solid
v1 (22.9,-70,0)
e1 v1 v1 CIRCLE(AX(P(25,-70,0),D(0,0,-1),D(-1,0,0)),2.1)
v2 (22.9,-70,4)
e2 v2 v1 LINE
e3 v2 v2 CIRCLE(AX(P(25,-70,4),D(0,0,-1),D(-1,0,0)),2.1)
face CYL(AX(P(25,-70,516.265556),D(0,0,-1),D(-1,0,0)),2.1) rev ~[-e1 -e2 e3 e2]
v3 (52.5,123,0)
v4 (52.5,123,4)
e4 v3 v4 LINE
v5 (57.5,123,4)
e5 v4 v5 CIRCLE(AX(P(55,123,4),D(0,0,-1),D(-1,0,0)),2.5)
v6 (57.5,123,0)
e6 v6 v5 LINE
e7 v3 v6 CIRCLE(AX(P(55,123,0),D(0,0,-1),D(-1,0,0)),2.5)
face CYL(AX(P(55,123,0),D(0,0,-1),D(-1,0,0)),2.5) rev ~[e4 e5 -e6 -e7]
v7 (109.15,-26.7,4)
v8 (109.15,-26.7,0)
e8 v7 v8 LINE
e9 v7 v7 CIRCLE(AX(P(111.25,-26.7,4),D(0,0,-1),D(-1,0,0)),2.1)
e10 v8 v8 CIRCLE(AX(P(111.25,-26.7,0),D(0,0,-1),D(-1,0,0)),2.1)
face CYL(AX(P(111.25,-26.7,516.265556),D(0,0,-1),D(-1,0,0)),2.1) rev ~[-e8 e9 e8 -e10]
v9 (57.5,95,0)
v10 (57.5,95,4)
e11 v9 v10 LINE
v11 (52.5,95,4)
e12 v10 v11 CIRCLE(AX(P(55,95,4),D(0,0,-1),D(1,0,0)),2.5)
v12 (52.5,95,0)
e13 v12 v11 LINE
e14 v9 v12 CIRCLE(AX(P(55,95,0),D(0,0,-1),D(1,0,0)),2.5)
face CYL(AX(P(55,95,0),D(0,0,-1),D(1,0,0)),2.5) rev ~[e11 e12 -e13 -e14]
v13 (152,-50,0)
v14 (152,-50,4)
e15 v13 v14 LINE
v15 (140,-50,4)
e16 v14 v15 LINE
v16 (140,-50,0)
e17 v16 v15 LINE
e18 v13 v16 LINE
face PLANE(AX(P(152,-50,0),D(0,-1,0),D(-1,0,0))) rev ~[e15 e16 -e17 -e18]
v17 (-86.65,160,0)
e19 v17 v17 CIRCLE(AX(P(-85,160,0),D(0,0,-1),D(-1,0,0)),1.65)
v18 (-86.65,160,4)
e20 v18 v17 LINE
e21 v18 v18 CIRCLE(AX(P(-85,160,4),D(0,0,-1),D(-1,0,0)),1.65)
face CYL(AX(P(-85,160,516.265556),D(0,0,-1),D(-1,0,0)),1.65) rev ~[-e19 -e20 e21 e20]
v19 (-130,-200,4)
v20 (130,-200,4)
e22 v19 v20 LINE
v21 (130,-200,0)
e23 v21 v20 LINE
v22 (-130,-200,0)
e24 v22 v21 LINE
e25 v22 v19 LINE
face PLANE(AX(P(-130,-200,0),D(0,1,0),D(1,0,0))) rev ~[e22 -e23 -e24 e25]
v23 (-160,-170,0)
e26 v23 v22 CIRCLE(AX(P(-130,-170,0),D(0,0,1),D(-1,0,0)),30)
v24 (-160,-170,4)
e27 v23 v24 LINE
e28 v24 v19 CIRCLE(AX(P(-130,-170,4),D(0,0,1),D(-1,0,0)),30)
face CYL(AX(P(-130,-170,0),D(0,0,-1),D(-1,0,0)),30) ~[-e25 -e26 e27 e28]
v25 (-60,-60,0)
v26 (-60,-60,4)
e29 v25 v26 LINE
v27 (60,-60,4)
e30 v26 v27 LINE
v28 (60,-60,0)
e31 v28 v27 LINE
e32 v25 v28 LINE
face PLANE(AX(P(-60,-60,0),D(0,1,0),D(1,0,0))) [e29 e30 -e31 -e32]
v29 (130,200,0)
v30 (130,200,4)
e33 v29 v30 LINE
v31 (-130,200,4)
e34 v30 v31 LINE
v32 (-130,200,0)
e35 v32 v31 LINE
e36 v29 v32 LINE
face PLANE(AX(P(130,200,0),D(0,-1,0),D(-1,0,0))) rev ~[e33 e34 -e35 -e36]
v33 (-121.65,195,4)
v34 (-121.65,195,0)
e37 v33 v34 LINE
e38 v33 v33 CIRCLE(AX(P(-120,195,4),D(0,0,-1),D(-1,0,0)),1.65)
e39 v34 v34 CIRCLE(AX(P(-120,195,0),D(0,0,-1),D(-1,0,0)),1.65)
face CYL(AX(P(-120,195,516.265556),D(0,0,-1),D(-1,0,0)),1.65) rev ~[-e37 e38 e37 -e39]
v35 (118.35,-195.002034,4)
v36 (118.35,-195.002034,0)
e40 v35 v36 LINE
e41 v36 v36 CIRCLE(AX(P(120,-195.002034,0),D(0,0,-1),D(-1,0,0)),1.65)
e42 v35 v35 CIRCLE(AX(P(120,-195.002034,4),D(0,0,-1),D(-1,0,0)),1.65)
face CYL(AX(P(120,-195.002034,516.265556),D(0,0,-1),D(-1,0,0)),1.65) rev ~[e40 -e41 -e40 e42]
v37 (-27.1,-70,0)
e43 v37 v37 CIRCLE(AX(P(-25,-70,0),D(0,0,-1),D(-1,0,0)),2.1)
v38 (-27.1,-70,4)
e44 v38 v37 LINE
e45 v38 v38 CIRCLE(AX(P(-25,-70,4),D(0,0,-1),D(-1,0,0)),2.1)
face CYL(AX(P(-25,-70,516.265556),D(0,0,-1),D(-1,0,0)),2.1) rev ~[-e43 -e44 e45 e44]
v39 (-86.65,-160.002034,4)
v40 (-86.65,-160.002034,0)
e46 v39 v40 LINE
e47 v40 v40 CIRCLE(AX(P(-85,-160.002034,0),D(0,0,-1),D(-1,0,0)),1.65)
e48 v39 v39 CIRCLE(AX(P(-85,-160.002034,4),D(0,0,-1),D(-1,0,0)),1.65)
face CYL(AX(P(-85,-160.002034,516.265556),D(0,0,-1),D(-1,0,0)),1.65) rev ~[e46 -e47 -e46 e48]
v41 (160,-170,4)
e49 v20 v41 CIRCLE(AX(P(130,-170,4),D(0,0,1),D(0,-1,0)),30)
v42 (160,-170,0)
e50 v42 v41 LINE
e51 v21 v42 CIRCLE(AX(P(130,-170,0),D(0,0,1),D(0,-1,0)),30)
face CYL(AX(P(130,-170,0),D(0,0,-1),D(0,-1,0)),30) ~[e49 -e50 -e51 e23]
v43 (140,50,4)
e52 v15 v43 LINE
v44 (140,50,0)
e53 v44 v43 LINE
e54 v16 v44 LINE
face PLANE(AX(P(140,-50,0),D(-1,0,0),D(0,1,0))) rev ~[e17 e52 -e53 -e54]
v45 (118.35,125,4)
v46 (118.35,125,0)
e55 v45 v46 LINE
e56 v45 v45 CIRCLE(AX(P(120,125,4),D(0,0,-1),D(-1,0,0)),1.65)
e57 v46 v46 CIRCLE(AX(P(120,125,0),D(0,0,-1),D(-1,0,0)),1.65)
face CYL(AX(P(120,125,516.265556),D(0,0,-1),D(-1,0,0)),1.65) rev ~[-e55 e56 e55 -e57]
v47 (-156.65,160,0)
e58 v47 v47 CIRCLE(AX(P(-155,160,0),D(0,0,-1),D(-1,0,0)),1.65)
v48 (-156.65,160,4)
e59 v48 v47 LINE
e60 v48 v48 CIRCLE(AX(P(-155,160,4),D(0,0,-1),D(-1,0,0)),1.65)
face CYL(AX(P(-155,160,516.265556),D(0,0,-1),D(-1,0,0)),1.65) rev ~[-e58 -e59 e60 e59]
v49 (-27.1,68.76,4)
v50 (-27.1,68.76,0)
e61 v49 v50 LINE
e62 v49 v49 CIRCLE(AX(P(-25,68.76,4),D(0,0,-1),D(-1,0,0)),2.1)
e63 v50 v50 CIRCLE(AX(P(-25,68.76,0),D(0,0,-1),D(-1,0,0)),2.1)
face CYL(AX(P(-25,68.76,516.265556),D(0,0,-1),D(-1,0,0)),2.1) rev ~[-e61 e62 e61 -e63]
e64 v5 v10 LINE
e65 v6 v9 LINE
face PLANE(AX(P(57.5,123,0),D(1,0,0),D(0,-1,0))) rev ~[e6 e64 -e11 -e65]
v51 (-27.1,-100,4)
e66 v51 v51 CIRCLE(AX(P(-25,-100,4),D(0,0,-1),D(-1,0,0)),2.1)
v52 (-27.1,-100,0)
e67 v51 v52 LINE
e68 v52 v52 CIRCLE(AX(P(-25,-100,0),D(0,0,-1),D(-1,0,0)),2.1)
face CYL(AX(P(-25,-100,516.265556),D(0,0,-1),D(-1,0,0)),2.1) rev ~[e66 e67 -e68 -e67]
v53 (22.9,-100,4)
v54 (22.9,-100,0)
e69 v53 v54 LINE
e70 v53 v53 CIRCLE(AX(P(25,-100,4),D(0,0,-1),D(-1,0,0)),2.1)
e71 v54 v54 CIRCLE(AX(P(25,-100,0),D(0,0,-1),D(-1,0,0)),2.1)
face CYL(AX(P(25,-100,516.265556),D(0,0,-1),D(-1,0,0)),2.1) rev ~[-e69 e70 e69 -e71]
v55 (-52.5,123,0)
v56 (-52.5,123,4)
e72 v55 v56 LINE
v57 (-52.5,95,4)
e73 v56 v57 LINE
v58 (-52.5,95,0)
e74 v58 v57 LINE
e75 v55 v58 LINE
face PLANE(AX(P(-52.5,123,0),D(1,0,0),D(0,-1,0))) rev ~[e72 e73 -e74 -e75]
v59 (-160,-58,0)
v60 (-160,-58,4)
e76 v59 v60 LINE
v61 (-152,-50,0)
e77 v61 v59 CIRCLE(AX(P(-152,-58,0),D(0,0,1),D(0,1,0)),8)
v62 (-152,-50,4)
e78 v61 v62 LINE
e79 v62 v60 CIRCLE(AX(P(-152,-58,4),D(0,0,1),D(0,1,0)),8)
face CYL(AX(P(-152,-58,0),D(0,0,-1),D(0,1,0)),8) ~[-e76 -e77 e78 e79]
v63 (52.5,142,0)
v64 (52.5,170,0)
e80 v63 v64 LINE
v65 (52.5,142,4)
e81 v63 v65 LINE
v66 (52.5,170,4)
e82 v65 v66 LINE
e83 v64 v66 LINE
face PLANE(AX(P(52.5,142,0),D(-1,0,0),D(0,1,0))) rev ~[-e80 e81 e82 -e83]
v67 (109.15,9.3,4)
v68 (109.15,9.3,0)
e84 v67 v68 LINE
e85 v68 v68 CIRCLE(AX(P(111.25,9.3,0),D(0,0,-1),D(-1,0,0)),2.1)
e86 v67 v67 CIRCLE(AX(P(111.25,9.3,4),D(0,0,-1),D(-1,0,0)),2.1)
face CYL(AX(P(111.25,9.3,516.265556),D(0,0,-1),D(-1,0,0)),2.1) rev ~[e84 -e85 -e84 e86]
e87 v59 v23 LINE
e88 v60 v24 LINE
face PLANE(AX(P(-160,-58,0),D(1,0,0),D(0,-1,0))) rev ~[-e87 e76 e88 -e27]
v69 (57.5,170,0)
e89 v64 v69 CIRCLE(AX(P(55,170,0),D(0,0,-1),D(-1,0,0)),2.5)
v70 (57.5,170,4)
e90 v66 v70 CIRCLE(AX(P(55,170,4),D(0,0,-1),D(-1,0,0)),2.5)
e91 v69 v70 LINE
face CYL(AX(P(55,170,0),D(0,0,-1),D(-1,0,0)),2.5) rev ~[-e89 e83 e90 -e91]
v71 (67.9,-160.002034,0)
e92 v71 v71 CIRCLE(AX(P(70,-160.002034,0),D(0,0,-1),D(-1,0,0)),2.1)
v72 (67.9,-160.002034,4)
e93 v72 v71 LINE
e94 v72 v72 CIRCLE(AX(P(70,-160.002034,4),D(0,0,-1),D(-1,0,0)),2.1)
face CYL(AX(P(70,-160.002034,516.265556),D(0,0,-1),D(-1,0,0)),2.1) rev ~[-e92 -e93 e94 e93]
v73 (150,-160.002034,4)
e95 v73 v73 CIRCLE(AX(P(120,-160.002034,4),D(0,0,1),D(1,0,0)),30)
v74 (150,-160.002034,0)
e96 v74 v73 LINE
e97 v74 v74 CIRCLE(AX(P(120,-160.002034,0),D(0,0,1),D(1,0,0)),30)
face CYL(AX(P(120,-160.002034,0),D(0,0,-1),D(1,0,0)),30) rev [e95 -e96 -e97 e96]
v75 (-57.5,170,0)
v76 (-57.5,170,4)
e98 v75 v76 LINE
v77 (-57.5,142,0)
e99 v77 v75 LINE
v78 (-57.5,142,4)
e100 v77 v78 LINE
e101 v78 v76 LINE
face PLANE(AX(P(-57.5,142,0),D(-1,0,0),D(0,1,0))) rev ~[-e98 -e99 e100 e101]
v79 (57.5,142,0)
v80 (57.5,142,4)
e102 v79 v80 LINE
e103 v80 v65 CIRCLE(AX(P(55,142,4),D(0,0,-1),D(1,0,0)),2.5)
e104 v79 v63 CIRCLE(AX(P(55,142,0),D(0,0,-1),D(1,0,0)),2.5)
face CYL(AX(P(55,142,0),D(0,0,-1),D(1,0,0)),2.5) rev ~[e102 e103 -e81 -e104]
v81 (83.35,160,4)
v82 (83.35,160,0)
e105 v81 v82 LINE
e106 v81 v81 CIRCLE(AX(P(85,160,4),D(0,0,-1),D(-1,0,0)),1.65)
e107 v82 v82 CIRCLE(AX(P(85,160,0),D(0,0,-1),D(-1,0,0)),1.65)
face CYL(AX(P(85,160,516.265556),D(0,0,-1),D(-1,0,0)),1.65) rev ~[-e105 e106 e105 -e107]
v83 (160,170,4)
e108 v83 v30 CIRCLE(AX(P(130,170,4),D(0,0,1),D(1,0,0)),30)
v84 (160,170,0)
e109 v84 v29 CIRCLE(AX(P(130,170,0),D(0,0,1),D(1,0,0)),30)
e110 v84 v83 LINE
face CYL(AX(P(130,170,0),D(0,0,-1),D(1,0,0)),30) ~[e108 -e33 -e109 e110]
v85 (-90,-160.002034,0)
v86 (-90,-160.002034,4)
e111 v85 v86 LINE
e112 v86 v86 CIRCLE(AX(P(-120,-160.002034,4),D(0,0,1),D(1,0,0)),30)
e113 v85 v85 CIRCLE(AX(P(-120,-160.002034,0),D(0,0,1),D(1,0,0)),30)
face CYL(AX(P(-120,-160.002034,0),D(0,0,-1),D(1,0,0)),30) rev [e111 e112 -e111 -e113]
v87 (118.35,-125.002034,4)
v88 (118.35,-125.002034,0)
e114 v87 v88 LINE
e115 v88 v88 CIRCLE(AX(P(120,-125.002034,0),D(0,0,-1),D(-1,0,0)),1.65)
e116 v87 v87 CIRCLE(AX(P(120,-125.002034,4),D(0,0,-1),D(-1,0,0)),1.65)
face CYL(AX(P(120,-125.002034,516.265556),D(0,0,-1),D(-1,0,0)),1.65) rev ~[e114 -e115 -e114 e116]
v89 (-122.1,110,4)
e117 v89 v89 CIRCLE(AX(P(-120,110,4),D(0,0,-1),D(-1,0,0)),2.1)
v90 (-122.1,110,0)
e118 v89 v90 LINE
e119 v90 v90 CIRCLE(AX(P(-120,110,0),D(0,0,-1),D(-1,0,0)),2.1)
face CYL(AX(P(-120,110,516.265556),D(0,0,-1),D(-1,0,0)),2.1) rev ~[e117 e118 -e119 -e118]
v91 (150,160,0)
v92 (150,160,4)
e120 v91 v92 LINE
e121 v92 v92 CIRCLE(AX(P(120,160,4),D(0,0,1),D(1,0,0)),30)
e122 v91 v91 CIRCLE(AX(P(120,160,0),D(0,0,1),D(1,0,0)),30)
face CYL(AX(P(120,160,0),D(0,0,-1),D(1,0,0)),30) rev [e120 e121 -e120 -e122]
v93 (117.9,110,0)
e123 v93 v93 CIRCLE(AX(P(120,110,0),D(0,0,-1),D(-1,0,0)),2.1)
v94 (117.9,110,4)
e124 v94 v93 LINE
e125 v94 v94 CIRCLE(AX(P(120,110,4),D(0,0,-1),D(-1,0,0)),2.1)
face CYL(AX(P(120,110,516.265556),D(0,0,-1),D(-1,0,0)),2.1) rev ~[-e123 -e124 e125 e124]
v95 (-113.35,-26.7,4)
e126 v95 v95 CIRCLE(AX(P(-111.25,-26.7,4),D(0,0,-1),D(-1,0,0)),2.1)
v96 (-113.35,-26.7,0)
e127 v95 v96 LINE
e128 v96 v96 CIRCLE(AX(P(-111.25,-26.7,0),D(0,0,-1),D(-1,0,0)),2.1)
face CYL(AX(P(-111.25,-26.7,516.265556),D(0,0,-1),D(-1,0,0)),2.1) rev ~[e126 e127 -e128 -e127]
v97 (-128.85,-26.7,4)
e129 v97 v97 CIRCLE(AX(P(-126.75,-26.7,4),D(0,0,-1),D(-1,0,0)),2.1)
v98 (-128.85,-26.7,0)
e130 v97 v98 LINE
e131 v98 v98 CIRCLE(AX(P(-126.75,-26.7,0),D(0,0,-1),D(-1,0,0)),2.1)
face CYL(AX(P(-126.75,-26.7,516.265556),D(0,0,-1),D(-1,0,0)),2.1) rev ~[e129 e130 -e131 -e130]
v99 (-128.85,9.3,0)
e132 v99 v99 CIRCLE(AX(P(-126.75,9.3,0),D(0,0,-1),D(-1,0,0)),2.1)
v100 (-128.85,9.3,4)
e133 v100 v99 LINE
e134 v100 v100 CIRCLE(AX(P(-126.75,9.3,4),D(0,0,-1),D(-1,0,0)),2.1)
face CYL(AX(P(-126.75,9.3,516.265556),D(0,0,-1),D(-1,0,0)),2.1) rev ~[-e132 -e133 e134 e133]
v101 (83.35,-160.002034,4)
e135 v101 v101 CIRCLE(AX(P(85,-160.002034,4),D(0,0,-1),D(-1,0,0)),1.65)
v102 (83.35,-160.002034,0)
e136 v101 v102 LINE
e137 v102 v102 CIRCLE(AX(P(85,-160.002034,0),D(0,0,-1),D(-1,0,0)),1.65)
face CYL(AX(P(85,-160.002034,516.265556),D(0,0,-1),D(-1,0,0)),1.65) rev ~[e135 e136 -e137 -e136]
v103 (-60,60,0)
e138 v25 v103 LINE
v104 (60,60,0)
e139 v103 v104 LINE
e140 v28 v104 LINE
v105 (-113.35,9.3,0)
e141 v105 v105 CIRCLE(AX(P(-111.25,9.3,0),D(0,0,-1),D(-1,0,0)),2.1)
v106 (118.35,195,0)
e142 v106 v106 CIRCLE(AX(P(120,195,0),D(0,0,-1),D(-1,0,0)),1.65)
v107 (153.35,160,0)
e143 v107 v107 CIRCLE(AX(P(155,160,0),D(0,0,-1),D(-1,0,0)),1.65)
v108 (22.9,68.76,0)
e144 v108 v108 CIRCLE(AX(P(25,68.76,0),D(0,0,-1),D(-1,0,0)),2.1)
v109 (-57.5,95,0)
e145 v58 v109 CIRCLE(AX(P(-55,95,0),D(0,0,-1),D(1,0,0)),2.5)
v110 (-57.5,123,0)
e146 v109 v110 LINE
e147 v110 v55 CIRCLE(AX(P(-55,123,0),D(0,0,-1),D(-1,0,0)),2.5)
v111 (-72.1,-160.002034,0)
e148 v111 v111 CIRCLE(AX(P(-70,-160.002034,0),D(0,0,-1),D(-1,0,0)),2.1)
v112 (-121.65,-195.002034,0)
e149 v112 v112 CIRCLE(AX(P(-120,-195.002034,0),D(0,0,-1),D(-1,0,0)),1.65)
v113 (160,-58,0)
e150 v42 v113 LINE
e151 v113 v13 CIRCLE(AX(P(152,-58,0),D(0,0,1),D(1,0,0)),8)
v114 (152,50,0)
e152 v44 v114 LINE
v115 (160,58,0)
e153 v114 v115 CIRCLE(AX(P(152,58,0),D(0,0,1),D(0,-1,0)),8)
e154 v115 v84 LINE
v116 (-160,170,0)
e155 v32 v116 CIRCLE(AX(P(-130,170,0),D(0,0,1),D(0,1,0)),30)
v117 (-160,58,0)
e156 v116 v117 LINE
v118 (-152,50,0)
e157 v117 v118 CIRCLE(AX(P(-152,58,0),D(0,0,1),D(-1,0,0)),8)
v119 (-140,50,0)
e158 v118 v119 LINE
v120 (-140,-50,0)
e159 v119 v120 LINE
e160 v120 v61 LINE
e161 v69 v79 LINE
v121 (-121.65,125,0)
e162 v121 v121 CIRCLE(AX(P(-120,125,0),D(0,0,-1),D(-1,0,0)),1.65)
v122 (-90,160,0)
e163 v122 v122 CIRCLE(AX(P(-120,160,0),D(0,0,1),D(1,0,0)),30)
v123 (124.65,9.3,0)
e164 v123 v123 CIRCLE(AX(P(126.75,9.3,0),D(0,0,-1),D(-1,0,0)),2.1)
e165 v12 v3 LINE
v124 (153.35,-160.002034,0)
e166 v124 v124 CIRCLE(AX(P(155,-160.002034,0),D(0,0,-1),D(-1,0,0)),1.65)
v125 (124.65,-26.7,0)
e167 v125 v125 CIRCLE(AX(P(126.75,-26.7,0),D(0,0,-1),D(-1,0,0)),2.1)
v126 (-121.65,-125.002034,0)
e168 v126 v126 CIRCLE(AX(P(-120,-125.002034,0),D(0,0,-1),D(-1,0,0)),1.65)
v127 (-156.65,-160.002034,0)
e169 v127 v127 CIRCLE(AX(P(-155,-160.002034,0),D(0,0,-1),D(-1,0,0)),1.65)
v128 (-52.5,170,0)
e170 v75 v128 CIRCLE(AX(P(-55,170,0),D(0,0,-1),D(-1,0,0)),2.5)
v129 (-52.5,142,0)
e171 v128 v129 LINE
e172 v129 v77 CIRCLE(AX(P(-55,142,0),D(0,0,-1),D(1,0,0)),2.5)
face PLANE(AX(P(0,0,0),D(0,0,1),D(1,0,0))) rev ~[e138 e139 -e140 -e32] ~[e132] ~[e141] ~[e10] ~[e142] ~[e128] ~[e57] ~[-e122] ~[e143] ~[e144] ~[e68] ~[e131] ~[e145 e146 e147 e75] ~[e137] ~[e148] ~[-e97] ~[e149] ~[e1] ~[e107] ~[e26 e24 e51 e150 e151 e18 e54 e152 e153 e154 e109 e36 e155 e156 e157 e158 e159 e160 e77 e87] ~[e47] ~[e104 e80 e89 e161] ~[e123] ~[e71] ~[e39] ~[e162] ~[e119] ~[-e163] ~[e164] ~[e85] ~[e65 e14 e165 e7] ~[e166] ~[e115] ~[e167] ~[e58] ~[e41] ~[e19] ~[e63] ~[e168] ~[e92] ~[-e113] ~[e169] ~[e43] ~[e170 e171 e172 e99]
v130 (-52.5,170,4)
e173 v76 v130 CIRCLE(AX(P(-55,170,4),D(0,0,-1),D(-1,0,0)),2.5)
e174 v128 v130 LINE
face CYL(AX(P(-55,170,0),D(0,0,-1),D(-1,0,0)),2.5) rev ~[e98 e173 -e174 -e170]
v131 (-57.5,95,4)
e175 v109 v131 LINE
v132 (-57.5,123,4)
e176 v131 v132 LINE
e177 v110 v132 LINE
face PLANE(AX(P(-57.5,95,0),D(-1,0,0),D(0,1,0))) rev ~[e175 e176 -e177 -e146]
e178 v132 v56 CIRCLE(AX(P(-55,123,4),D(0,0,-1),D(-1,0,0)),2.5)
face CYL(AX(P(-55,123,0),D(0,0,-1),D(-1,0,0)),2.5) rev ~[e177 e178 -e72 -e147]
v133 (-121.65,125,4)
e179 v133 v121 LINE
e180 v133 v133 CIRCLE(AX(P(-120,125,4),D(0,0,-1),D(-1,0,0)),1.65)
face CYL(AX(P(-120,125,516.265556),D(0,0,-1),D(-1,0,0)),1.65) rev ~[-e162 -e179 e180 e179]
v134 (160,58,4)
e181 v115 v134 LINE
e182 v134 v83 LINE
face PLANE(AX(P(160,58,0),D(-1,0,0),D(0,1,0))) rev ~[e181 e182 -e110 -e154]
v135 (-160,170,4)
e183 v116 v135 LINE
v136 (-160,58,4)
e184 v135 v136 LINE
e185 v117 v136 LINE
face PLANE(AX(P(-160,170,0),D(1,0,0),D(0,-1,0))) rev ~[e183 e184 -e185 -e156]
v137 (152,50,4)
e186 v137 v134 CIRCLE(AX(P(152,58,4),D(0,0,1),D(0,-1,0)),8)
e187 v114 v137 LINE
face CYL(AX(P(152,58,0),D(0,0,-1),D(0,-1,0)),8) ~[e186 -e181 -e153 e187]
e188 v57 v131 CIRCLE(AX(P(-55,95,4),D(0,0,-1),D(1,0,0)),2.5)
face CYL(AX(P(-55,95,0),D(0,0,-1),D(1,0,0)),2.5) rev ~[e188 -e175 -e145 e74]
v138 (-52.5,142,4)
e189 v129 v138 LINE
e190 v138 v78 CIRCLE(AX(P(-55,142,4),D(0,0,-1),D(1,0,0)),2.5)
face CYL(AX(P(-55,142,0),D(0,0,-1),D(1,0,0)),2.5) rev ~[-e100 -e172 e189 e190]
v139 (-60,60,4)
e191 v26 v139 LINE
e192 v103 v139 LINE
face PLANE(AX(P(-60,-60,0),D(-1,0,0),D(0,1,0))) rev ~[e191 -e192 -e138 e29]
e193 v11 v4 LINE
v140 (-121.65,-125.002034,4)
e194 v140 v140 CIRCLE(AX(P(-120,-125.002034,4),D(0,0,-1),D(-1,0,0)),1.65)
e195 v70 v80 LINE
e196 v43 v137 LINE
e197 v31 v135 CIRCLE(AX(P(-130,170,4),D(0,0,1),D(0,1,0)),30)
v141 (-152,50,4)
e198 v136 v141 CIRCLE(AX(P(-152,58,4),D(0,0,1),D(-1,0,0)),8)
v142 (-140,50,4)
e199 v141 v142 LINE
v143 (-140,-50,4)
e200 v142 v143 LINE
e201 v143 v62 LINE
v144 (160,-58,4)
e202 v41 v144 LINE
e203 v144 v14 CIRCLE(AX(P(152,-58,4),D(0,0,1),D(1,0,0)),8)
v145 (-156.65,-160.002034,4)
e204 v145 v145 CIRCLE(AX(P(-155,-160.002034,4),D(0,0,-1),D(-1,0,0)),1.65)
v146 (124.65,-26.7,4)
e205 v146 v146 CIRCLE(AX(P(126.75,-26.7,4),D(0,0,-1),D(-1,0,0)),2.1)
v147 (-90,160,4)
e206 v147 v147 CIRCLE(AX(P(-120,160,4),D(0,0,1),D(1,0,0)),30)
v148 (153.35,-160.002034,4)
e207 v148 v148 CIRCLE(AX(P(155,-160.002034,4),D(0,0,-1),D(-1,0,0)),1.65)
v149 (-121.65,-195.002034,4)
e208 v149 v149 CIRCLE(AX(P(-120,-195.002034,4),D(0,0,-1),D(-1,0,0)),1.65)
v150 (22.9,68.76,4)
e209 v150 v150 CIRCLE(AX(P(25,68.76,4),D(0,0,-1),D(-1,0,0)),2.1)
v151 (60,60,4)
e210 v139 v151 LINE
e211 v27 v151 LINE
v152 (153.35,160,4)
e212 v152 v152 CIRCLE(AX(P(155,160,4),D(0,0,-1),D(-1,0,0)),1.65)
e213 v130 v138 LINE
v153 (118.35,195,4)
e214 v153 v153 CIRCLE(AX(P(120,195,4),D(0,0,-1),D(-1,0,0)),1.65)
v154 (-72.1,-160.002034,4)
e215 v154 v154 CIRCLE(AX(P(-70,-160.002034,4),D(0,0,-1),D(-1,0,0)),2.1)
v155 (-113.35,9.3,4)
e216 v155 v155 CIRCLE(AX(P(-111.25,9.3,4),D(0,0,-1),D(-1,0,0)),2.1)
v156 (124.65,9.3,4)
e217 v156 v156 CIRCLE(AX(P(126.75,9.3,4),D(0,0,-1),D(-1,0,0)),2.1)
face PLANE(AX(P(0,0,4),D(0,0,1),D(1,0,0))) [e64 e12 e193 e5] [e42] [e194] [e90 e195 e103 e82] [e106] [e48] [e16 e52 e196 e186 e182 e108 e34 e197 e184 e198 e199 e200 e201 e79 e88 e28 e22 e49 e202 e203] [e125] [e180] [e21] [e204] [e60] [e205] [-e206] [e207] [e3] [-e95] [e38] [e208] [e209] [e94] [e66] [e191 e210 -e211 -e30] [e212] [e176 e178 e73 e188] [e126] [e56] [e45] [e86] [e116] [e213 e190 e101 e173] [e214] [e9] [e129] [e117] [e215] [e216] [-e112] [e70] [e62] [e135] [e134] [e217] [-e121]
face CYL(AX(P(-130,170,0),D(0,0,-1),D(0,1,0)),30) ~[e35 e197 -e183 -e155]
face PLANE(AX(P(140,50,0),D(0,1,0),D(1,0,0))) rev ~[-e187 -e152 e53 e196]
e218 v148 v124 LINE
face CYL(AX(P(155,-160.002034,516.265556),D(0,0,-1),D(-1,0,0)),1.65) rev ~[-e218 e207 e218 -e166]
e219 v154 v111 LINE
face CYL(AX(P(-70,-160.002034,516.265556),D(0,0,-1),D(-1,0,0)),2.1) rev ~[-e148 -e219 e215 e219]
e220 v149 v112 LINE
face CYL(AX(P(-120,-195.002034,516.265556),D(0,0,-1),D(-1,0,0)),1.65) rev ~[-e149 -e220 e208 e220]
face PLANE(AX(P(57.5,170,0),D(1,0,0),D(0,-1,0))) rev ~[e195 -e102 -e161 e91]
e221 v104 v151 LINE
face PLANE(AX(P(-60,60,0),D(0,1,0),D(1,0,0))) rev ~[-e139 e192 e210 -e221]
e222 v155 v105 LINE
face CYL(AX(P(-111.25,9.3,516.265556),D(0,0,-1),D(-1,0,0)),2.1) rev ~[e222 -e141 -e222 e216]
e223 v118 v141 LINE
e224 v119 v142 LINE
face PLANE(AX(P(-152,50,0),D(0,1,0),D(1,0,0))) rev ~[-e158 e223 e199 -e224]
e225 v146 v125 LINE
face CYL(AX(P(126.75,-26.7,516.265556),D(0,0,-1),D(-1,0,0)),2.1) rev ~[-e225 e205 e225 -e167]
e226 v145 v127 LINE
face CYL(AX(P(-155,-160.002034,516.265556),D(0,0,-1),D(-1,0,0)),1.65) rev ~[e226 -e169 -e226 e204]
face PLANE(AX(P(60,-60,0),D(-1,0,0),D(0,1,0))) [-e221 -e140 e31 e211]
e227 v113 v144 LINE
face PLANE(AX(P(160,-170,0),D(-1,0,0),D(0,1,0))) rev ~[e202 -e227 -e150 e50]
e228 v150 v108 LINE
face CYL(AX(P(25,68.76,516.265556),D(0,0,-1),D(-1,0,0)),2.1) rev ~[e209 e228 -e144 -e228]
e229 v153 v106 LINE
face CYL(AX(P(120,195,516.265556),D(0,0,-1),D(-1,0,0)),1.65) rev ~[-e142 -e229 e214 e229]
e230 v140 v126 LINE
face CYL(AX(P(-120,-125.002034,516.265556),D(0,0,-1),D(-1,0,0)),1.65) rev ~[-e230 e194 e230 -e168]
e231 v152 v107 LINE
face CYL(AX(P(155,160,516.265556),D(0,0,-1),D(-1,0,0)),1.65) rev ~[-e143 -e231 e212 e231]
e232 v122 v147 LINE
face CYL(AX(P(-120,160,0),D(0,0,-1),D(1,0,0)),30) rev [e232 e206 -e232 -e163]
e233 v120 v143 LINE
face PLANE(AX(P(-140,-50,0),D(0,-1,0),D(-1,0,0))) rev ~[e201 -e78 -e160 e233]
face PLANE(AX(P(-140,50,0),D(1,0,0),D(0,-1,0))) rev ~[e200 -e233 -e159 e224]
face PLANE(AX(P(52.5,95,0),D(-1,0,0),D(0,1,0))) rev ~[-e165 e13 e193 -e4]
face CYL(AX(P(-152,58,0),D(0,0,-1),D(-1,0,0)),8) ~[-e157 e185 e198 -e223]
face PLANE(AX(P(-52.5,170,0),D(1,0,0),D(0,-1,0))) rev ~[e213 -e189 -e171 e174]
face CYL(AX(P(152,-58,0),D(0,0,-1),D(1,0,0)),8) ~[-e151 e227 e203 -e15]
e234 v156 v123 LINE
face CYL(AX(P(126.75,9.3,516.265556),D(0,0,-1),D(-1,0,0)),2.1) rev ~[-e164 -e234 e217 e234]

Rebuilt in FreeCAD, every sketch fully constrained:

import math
import FreeCAD as App
import Part
import Sketcher


def add_polygon(sketch, points):
    """Adds a closed chain of lines whose ends are joined by coincident constraints."""
    first, n = sketch.GeometryCount, len(points)
    for a, b in zip(points, points[1:] + points[:1]):
        sketch.addGeometry(Part.LineSegment(App.Vector(*a, 0), App.Vector(*b, 0)), False)
    for i in range(n):
        sketch.addConstraint(Sketcher.Constraint("Coincident", first + i, 2, first + (i + 1) % n, 1))

doc = App.newDocument("Part")
body = doc.addObject("PartDesign::Body", "Body")

sketch1 = doc.addObject("Sketcher::SketchObject", "Sketch")
body.addObject(sketch1)
sketch1.AttachmentSupport = (doc.XY_Plane, [""])
sketch1.MapMode = "FlatFace"
sketch1.addGeometry(Part.LineSegment(App.Vector(-140, 50, 0), App.Vector(-140, -50, 0)), False)
sketch1.addGeometry(Part.LineSegment(App.Vector(-140, -50, 0), App.Vector(-152, -50, 0)), False)
sketch1.addGeometry(Part.ArcOfCircle(Part.Circle(App.Vector(-152, -58, 0), App.Vector(0, 0, 1), 8), math.radians(90), math.radians(180)), False)
sketch1.addGeometry(Part.LineSegment(App.Vector(-160, -58, 0), App.Vector(-160, -170, 0)), False)
sketch1.addGeometry(Part.ArcOfCircle(Part.Circle(App.Vector(-130, -170, 0), App.Vector(0, 0, 1), 30), math.radians(180), math.radians(270)), False)
sketch1.addGeometry(Part.LineSegment(App.Vector(-130, -200, 0), App.Vector(130, -200, 0)), False)
sketch1.addGeometry(Part.ArcOfCircle(Part.Circle(App.Vector(130, -170, 0), App.Vector(0, 0, 1), 30), math.radians(-90), math.radians(0)), False)
sketch1.addGeometry(Part.LineSegment(App.Vector(160, -170, 0), App.Vector(160, -58, 0)), False)
sketch1.addGeometry(Part.ArcOfCircle(Part.Circle(App.Vector(152, -58, 0), App.Vector(0, 0, 1), 8), math.radians(0), math.radians(90)), False)
sketch1.addGeometry(Part.LineSegment(App.Vector(152, -50, 0), App.Vector(140, -50, 0)), False)
sketch1.addGeometry(Part.LineSegment(App.Vector(140, -50, 0), App.Vector(140, 50, 0)), False)
sketch1.addGeometry(Part.LineSegment(App.Vector(140, 50, 0), App.Vector(152, 50, 0)), False)
sketch1.addGeometry(Part.ArcOfCircle(Part.Circle(App.Vector(152, 58, 0), App.Vector(0, 0, 1), 8), math.radians(-90), math.radians(0)), False)
sketch1.addGeometry(Part.LineSegment(App.Vector(160, 58, 0), App.Vector(160, 170, 0)), False)
sketch1.addGeometry(Part.ArcOfCircle(Part.Circle(App.Vector(130, 170, 0), App.Vector(0, 0, 1), 30), math.radians(0), math.radians(90)), False)
sketch1.addGeometry(Part.LineSegment(App.Vector(130, 200, 0), App.Vector(-130, 200, 0)), False)
sketch1.addGeometry(Part.ArcOfCircle(Part.Circle(App.Vector(-130, 170, 0), App.Vector(0, 0, 1), 30), math.radians(90), math.radians(180)), False)
sketch1.addGeometry(Part.LineSegment(App.Vector(-160, 170, 0), App.Vector(-160, 58, 0)), False)
sketch1.addGeometry(Part.ArcOfCircle(Part.Circle(App.Vector(-152, 58, 0), App.Vector(0, 0, 1), 8), math.radians(-180), math.radians(-90)), False)
sketch1.addGeometry(Part.LineSegment(App.Vector(-152, 50, 0), App.Vector(-140, 50, 0)), False)
sketch1.addGeometry(Part.Circle(App.Vector(-120, -195.002034, 0), App.Vector(0, 0, 1), 1.5), False)
sketch1.addGeometry(Part.Circle(App.Vector(-155, -160.002034, 0), App.Vector(0, 0, 1), 1.5), False)
sketch1.addGeometry(Part.Circle(App.Vector(-120, -160.002034, 0), App.Vector(0, 0, 1), 30), False)
sketch1.addGeometry(Part.Circle(App.Vector(-85, -160.002034, 0), App.Vector(0, 0, 1), 1.5), False)
sketch1.addGeometry(Part.Circle(App.Vector(-120, -125.002034, 0), App.Vector(0, 0, 1), 1.5), False)
sketch1.addGeometry(Part.Circle(App.Vector(-70, -160.002034, 0), App.Vector(0, 0, 1), 2), False)
sketch1.addGeometry(Part.Circle(App.Vector(-25, -100, 0), App.Vector(0, 0, 1), 2), False)
sketch1.addGeometry(Part.Circle(App.Vector(-126.75, -26.7, 0), App.Vector(0, 0, 1), 2), False)
sketch1.addGeometry(Part.Circle(App.Vector(-111.25, -26.7, 0), App.Vector(0, 0, 1), 2), False)
sketch1.addGeometry(Part.Circle(App.Vector(-25, -70, 0), App.Vector(0, 0, 1), 2), False)
sketch1.addGeometry(Part.Circle(App.Vector(70, -160.002034, 0), App.Vector(0, 0, 1), 2), False)
sketch1.addGeometry(Part.Circle(App.Vector(25, -100, 0), App.Vector(0, 0, 1), 2), False)
sketch1.addGeometry(Part.Circle(App.Vector(85, -160.002034, 0), App.Vector(0, 0, 1), 1.5), False)
sketch1.addGeometry(Part.Circle(App.Vector(120, -195.002034, 0), App.Vector(0, 0, 1), 1.5), False)
sketch1.addGeometry(Part.Circle(App.Vector(120, -160.002034, 0), App.Vector(0, 0, 1), 30), False)
sketch1.addGeometry(Part.Circle(App.Vector(155, -160.002034, 0), App.Vector(0, 0, 1), 1.5), False)
sketch1.addGeometry(Part.Circle(App.Vector(120, -125.002034, 0), App.Vector(0, 0, 1), 1.5), False)
sketch1.addGeometry(Part.Circle(App.Vector(25, -70, 0), App.Vector(0, 0, 1), 2), False)
sketch1.addGeometry(Part.Circle(App.Vector(111.25, -26.7, 0), App.Vector(0, 0, 1), 2), False)
sketch1.addGeometry(Part.Circle(App.Vector(126.75, -26.7, 0), App.Vector(0, 0, 1), 2), False)
sketch1.addGeometry(Part.Circle(App.Vector(-126.75, 9.3, 0), App.Vector(0, 0, 1), 2), False)
sketch1.addGeometry(Part.Circle(App.Vector(-111.25, 9.3, 0), App.Vector(0, 0, 1), 2), False)
sketch1.addGeometry(Part.Circle(App.Vector(-25, 68.76, 0), App.Vector(0, 0, 1), 2), False)
sketch1.addGeometry(Part.Circle(App.Vector(-120, 110, 0), App.Vector(0, 0, 1), 2), False)
sketch1.addGeometry(Part.Circle(App.Vector(-120, 125, 0), App.Vector(0, 0, 1), 1.5), False)
sketch1.addGeometry(Part.Circle(App.Vector(-155, 160, 0), App.Vector(0, 0, 1), 1.5), False)
sketch1.addGeometry(Part.Circle(App.Vector(-120, 160, 0), App.Vector(0, 0, 1), 30), False)
sketch1.addGeometry(Part.Circle(App.Vector(-120, 195, 0), App.Vector(0, 0, 1), 1.5), False)
sketch1.addGeometry(Part.Circle(App.Vector(-85, 160, 0), App.Vector(0, 0, 1), 1.5), False)
sketch1.addGeometry(Part.ArcOfCircle(Part.Circle(App.Vector(-55, 123, 0), App.Vector(0, 0, 1), 2.5), math.radians(0), math.radians(180)), False)
sketch1.addGeometry(Part.LineSegment(App.Vector(-52.5, 123, 0), App.Vector(-52.5, 95, 0)), False)
sketch1.addGeometry(Part.ArcOfCircle(Part.Circle(App.Vector(-55, 95, 0), App.Vector(0, 0, 1), 2.5), math.radians(180), math.radians(360)), False)
sketch1.addGeometry(Part.LineSegment(App.Vector(-57.5, 95, 0), App.Vector(-57.5, 123, 0)), False)
sketch1.addGeometry(Part.ArcOfCircle(Part.Circle(App.Vector(-55, 170, 0), App.Vector(0, 0, 1), 2.5), math.radians(0), math.radians(180)), False)
sketch1.addGeometry(Part.LineSegment(App.Vector(-52.5, 170, 0), App.Vector(-52.5, 142, 0)), False)
sketch1.addGeometry(Part.ArcOfCircle(Part.Circle(App.Vector(-55, 142, 0), App.Vector(0, 0, 1), 2.5), math.radians(180), math.radians(360)), False)
sketch1.addGeometry(Part.LineSegment(App.Vector(-57.5, 142, 0), App.Vector(-57.5, 170, 0)), False)
add_polygon(sketch1, [(60, -60), (-60, -60), (-60, 60), (60, 60)])
sketch1.addGeometry(Part.Circle(App.Vector(25, 68.76, 0), App.Vector(0, 0, 1), 2), False)
sketch1.addGeometry(Part.Circle(App.Vector(111.25, 9.3, 0), App.Vector(0, 0, 1), 2), False)
sketch1.addGeometry(Part.Circle(App.Vector(126.75, 9.3, 0), App.Vector(0, 0, 1), 2), False)
sketch1.addGeometry(Part.ArcOfCircle(Part.Circle(App.Vector(55, 123, 0), App.Vector(0, 0, 1), 2.5), math.radians(0), math.radians(180)), False)
sketch1.addGeometry(Part.LineSegment(App.Vector(57.5, 123, 0), App.Vector(57.5, 95, 0)), False)
sketch1.addGeometry(Part.ArcOfCircle(Part.Circle(App.Vector(55, 95, 0), App.Vector(0, 0, 1), 2.5), math.radians(180), math.radians(360)), False)
sketch1.addGeometry(Part.LineSegment(App.Vector(52.5, 95, 0), App.Vector(52.5, 123, 0)), False)
sketch1.addGeometry(Part.ArcOfCircle(Part.Circle(App.Vector(55, 170, 0), App.Vector(0, 0, 1), 2.5), math.radians(0), math.radians(180)), False)
sketch1.addGeometry(Part.LineSegment(App.Vector(57.5, 170, 0), App.Vector(57.5, 142, 0)), False)
sketch1.addGeometry(Part.ArcOfCircle(Part.Circle(App.Vector(55, 142, 0), App.Vector(0, 0, 1), 2.5), math.radians(180), math.radians(360)), False)
sketch1.addGeometry(Part.LineSegment(App.Vector(52.5, 142, 0), App.Vector(52.5, 170, 0)), False)
sketch1.addGeometry(Part.Circle(App.Vector(120, 110, 0), App.Vector(0, 0, 1), 2), False)
sketch1.addGeometry(Part.Circle(App.Vector(120, 125, 0), App.Vector(0, 0, 1), 1.5), False)
sketch1.addGeometry(Part.Circle(App.Vector(85, 160, 0), App.Vector(0, 0, 1), 1.5), False)
sketch1.addGeometry(Part.Circle(App.Vector(120, 160, 0), App.Vector(0, 0, 1), 30), False)
sketch1.addGeometry(Part.Circle(App.Vector(155, 160, 0), App.Vector(0, 0, 1), 1.5), False)
sketch1.addGeometry(Part.Circle(App.Vector(120, 195, 0), App.Vector(0, 0, 1), 1.5), False)
sketch1.addConstraint([
    Sketcher.Constraint("Coincident", 0, 2, 1, 1),
    Sketcher.Constraint("Tangent", 1, 2, 2, 1),
    Sketcher.Constraint("Tangent", 2, 2, 3, 1),
    Sketcher.Constraint("Tangent", 3, 2, 4, 1),
    Sketcher.Constraint("Tangent", 4, 2, 5, 1),
    Sketcher.Constraint("Tangent", 5, 2, 6, 1),
    Sketcher.Constraint("Tangent", 6, 2, 7, 1),
    Sketcher.Constraint("Tangent", 7, 2, 8, 1),
    Sketcher.Constraint("Tangent", 8, 2, 9, 1),
    Sketcher.Constraint("Coincident", 9, 2, 10, 1),
    Sketcher.Constraint("Coincident", 10, 2, 11, 1),
    Sketcher.Constraint("Tangent", 11, 2, 12, 1),
    Sketcher.Constraint("Tangent", 12, 2, 13, 1),
    Sketcher.Constraint("Tangent", 13, 2, 14, 1),
    Sketcher.Constraint("Tangent", 14, 2, 15, 1),
    Sketcher.Constraint("Tangent", 15, 2, 16, 1),
    Sketcher.Constraint("Tangent", 16, 2, 17, 1),
    Sketcher.Constraint("Tangent", 17, 2, 18, 1),
    Sketcher.Constraint("Tangent", 18, 2, 19, 1),
    Sketcher.Constraint("Coincident", 19, 2, 0, 1),
    Sketcher.Constraint("Tangent", 49, 1, 50, 1),
    Sketcher.Constraint("Tangent", 50, 2, 51, 2),
    Sketcher.Constraint("Tangent", 51, 1, 52, 1),
    Sketcher.Constraint("Tangent", 52, 2, 49, 2),
    Sketcher.Constraint("Tangent", 53, 1, 54, 1),
    Sketcher.Constraint("Tangent", 54, 2, 55, 2),
    Sketcher.Constraint("Tangent", 55, 1, 56, 1),
    Sketcher.Constraint("Tangent", 56, 2, 53, 2),
    Sketcher.Constraint("Tangent", 64, 1, 65, 1),
    Sketcher.Constraint("Tangent", 65, 2, 66, 2),
    Sketcher.Constraint("Tangent", 66, 1, 67, 1),
    Sketcher.Constraint("Tangent", 67, 2, 64, 2),
    Sketcher.Constraint("Tangent", 68, 1, 69, 1),
    Sketcher.Constraint("Tangent", 69, 2, 70, 2),
    Sketcher.Constraint("Tangent", 70, 1, 71, 1),
    Sketcher.Constraint("Tangent", 71, 2, 68, 2),
    Sketcher.Constraint("Vertical", 0),
    Sketcher.Constraint("Horizontal", 1),
    Sketcher.Constraint("Vertical", 3),
    Sketcher.Constraint("Horizontal", 5),
    Sketcher.Constraint("Vertical", 7),
    Sketcher.Constraint("Horizontal", 9),
    Sketcher.Constraint("Vertical", 10),
    Sketcher.Constraint("Horizontal", 11),
    Sketcher.Constraint("Vertical", 13),
    Sketcher.Constraint("Horizontal", 15),
    Sketcher.Constraint("Vertical", 17),
    Sketcher.Constraint("Horizontal", 19),
    Sketcher.Constraint("Vertical", 50),
    Sketcher.Constraint("Vertical", 52),
    Sketcher.Constraint("Vertical", 54),
    Sketcher.Constraint("Vertical", 56),
    Sketcher.Constraint("Horizontal", 57),
    Sketcher.Constraint("Vertical", 58),
    Sketcher.Constraint("Horizontal", 59),
    Sketcher.Constraint("Vertical", 60),
    Sketcher.Constraint("Vertical", 65),
    Sketcher.Constraint("Vertical", 67),
    Sketcher.Constraint("Vertical", 69),
    Sketcher.Constraint("Vertical", 71),
    Sketcher.Constraint("Equal", 4, 6),
    Sketcher.Constraint("Equal", 2, 8),
    Sketcher.Constraint("Equal", 8, 12),
    Sketcher.Constraint("Equal", 6, 14),
    Sketcher.Constraint("Equal", 14, 16),
    Sketcher.Constraint("Equal", 12, 18),
    Sketcher.Constraint("Equal", 20, 21),
    Sketcher.Constraint("Equal", 16, 22),
    Sketcher.Constraint("Equal", 21, 23),
    Sketcher.Constraint("Equal", 23, 24),
    Sketcher.Constraint("Equal", 25, 26),
    Sketcher.Constraint("Equal", 26, 27),
    Sketcher.Constraint("Equal", 27, 28),
    Sketcher.Constraint("Equal", 28, 29),
    Sketcher.Constraint("Equal", 29, 30),
    Sketcher.Constraint("Equal", 30, 31),
    Sketcher.Constraint("Equal", 24, 32),
    Sketcher.Constraint("Equal", 32, 33),
    Sketcher.Constraint("Equal", 22, 34),
    Sketcher.Constraint("Equal", 33, 35),
    Sketcher.Constraint("Equal", 35, 36),
    Sketcher.Constraint("Equal", 31, 37),
    Sketcher.Constraint("Equal", 37, 38),
    Sketcher.Constraint("Equal", 38, 39),
    Sketcher.Constraint("Equal", 39, 40),
    Sketcher.Constraint("Equal", 40, 41),
    Sketcher.Constraint("Equal", 41, 42),
    Sketcher.Constraint("Equal", 42, 43),
    Sketcher.Constraint("Equal", 36, 44),
    Sketcher.Constraint("Equal", 44, 45),
    Sketcher.Constraint("Equal", 34, 46),
    Sketcher.Constraint("Equal", 45, 47),
    Sketcher.Constraint("Equal", 47, 48),
    Sketcher.Constraint("Equal", 51, 53),
    Sketcher.Constraint("Equal", 43, 61),
    Sketcher.Constraint("Equal", 61, 62),
    Sketcher.Constraint("Equal", 62, 63),
    Sketcher.Constraint("Equal", 55, 64),
    Sketcher.Constraint("Equal", 66, 68),
    Sketcher.Constraint("Equal", 63, 72),
    Sketcher.Constraint("Equal", 48, 73),
    Sketcher.Constraint("Equal", 73, 74),
    Sketcher.Constraint("Equal", 46, 75),
    Sketcher.Constraint("Equal", 74, 76),
    Sketcher.Constraint("Equal", 76, 77),
    Sketcher.Constraint("Symmetric", 2, 3, 12, 3, -1, 1),
    Sketcher.Constraint("Symmetric", 6, 3, 16, 3, -1, 1),
    Sketcher.Constraint("Symmetric", 9, 2, 19, 2, -1, 1),
    Sketcher.Constraint("Symmetric", 57, 2, 59, 2, -1, 1),
    Sketcher.Constraint("Symmetric", 2, 3, 8, 3, -2),
    Sketcher.Constraint("Symmetric", 25, 3, 30, 3, -2),
    Sketcher.Constraint("Symmetric", 26, 3, 31, 3, -2),
    Sketcher.Constraint("Symmetric", 23, 3, 32, 3, -2),
    Sketcher.Constraint("Symmetric", 20, 3, 33, 3, -2),
    Sketcher.Constraint("Symmetric", 22, 3, 34, 3, -2),
    Sketcher.Constraint("Symmetric", 21, 3, 35, 3, -2),
    Sketcher.Constraint("Symmetric", 24, 3, 36, 3, -2),
    Sketcher.Constraint("Symmetric", 29, 3, 37, 3, -2),
    Sketcher.Constraint("Symmetric", 28, 3, 38, 3, -2),
    Sketcher.Constraint("Symmetric", 27, 3, 39, 3, -2),
    Sketcher.Constraint("Symmetric", 42, 3, 61, 3, -2),
    Sketcher.Constraint("Symmetric", 41, 3, 62, 3, -2),
    Sketcher.Constraint("Symmetric", 40, 3, 63, 3, -2),
    Sketcher.Constraint("Symmetric", 49, 3, 64, 3, -2),
    Sketcher.Constraint("Symmetric", 53, 3, 68, 3, -2),
    Sketcher.Constraint("Symmetric", 43, 3, 72, 3, -2),
    Sketcher.Constraint("Symmetric", 44, 3, 73, 3, -2),
    Sketcher.Constraint("Symmetric", 48, 3, 74, 3, -2),
    Sketcher.Constraint("Symmetric", 46, 3, 75, 3, -2),
    Sketcher.Constraint("Symmetric", 45, 3, 76, 3, -2),
    Sketcher.Constraint("Symmetric", 47, 3, 77, 3, -2),
    Sketcher.Constraint("Horizontal", 21, 3, 22, 3),
    Sketcher.Constraint("Horizontal", 22, 3, 23, 3),
    Sketcher.Constraint("Horizontal", 23, 3, 25, 3),
    Sketcher.Constraint("Horizontal", 27, 3, 28, 3),
    Sketcher.Constraint("Horizontal", 40, 3, 41, 3),
    Sketcher.Constraint("Horizontal", 45, 3, 46, 3),
    Sketcher.Constraint("Horizontal", 46, 3, 48, 3),
    Sketcher.Constraint("Horizontal", 16, 3, 53, 3),
    Sketcher.Constraint("Horizontal", 51, 3, 66, 3),
    Sketcher.Constraint("Horizontal", 55, 3, 70, 3),
    Sketcher.Constraint("Vertical", 20, 3, 22, 3),
    Sketcher.Constraint("Vertical", 22, 3, 24, 3),
    Sketcher.Constraint("Vertical", 26, 3, 29, 3),
    Sketcher.Constraint("Vertical", 27, 3, 40, 3),
    Sketcher.Constraint("Vertical", 28, 3, 41, 3),
    Sketcher.Constraint("Vertical", 29, 3, 42, 3),
    Sketcher.Constraint("Vertical", 24, 3, 43, 3),
    Sketcher.Constraint("Vertical", 43, 3, 44, 3),
    Sketcher.Constraint("Vertical", 21, 3, 45, 3),
    Sketcher.Constraint("Vertical", 44, 3, 46, 3),
    Sketcher.Constraint("Vertical", 46, 3, 47, 3),
    Sketcher.Constraint("Vertical", 23, 3, 48, 3),
    Sketcher.Constraint("Vertical", 51, 3, 53, 3),
    Sketcher.Constraint("Equal", 52, 54),
    Sketcher.Constraint("Equal", 59, 58),
    Sketcher.Constraint("Diameter", 20, 3.0),
    Sketcher.Constraint("Diameter", 22, 60.0),
    Sketcher.Constraint("Diameter", 25, 4.0),
    Sketcher.Constraint("Radius", 2, 8.0),
    Sketcher.Constraint("Radius", 49, 2.5),
    Sketcher.Constraint("DistanceX", 1, 2, 1, 1, 12.0),
    Sketcher.Constraint("DistanceX", 5, 1, 5, 2, 260.0),
    Sketcher.Constraint("DistanceX", 57, 2, 57, 1, 120.0),
    Sketcher.Constraint("DistanceY", 0, 2, 0, 1, 100.0),
    Sketcher.Constraint("DistanceY", 3, 2, 3, 1, 112.0),
    Sketcher.Constraint("DistanceY", 50, 2, 50, 1, 28.0),
    Sketcher.Constraint("DistanceX", 20, 3, -1, 1, 120.0),
    Sketcher.Constraint("DistanceX", 21, 3, -1, 1, 155.0),
    Sketcher.Constraint("DistanceX", 23, 3, -1, 1, 85.0),
    Sketcher.Constraint("DistanceX", 25, 3, -1, 1, 70.0),
    Sketcher.Constraint("DistanceX", 26, 3, -1, 1, 25.0),
    Sketcher.Constraint("DistanceY", 26, 3, -1, 1, 100.0),
    Sketcher.Constraint("DistanceY", 29, 3, -1, 1, 70.0),
    Sketcher.Constraint("DistanceY", -1, 1, 43, 3, 110.0),
    Sketcher.Constraint("DistanceY", -1, 1, 44, 3, 125.0),
    Sketcher.Constraint("DistanceY", -1, 1, 45, 3, 160.0),
    Sketcher.Constraint("DistanceY", -1, 1, 47, 3, 195.0),
    Sketcher.Constraint("DistanceX", 49, 3, -1, 1, 55.0),
    Sketcher.Constraint("DistanceY", -1, 1, 49, 3, 123.0),
    Sketcher.Constraint("DistanceY", 27, 3, -1, 1, 26.7),
    Sketcher.Constraint("DistanceY", -1, 1, 40, 3, 9.3),
    Sketcher.Constraint("DistanceX", 27, 3, -1, 1, 126.75),
    Sketcher.Constraint("DistanceX", 28, 3, -1, 1, 111.25),
    Sketcher.Constraint("DistanceY", -1, 1, 42, 3, 68.76),
    Sketcher.Constraint("DistanceY", 20, 3, -1, 1, 195.002034),
    Sketcher.Constraint("DistanceY", 21, 3, -1, 1, 160.002034),
    Sketcher.Constraint("DistanceY", 24, 3, -1, 1, 125.002034),
])
pad1 = doc.addObject("PartDesign::Pad", "Pad")
body.addObject(pad1)
pad1.Profile = sketch1
pad1.Length = 4

sketch2 = doc.addObject("Sketcher::SketchObject", "Sketch001")
body.addObject(sketch2)
sketch2.AttachmentSupport = (doc.XY_Plane, [""])
sketch2.MapMode = "FlatFace"
sketch2.AttachmentOffset = App.Placement(App.Vector(0, 0, 4), App.Rotation())
sketch2.addGeometry([
    Part.Circle(App.Vector(-120, 195, 0), App.Vector(0, 0, 1), 1.65),
    Part.Circle(App.Vector(-155, 160, 0), App.Vector(0, 0, 1), 1.65),
    Part.Circle(App.Vector(-85, 160, 0), App.Vector(0, 0, 1), 1.65),
    Part.Circle(App.Vector(-120, 125, 0), App.Vector(0, 0, 1), 1.65),
    Part.Circle(App.Vector(120, 195, 0), App.Vector(0, 0, 1), 1.65),
    Part.Circle(App.Vector(85, 160, 0), App.Vector(0, 0, 1), 1.65),
    Part.Circle(App.Vector(120, 125, 0), App.Vector(0, 0, 1), 1.65),
    Part.Circle(App.Vector(155, 160, 0), App.Vector(0, 0, 1), 1.65),
    Part.Circle(App.Vector(-120, -125.002034, 0), App.Vector(0, 0, 1), 1.65),
    Part.Circle(App.Vector(-155, -160.002034, 0), App.Vector(0, 0, 1), 1.65),
    Part.Circle(App.Vector(-85, -160.002034, 0), App.Vector(0, 0, 1), 1.65),
    Part.Circle(App.Vector(-120, -195.002034, 0), App.Vector(0, 0, 1), 1.65),
    Part.Circle(App.Vector(120, -125.002034, 0), App.Vector(0, 0, 1), 1.65),
    Part.Circle(App.Vector(85, -160.002034, 0), App.Vector(0, 0, 1), 1.65),
    Part.Circle(App.Vector(155, -160.002034, 0), App.Vector(0, 0, 1), 1.65),
    Part.Circle(App.Vector(120, -195.002034, 0), App.Vector(0, 0, 1), 1.65),
], False)
sketch2.addConstraint([
    Sketcher.Constraint("Equal", 0, 1),
    Sketcher.Constraint("Equal", 1, 2),
    Sketcher.Constraint("Equal", 2, 3),
    Sketcher.Constraint("Equal", 3, 4),
    Sketcher.Constraint("Equal", 4, 5),
    Sketcher.Constraint("Equal", 5, 6),
    Sketcher.Constraint("Equal", 6, 7),
    Sketcher.Constraint("Equal", 7, 8),
    Sketcher.Constraint("Equal", 8, 9),
    Sketcher.Constraint("Equal", 9, 10),
    Sketcher.Constraint("Equal", 10, 11),
    Sketcher.Constraint("Equal", 11, 12),
    Sketcher.Constraint("Equal", 12, 13),
    Sketcher.Constraint("Equal", 13, 14),
    Sketcher.Constraint("Equal", 14, 15),
    Sketcher.Constraint("Symmetric", 0, 3, 4, 3, -2),
    Sketcher.Constraint("Symmetric", 2, 3, 5, 3, -2),
    Sketcher.Constraint("Symmetric", 3, 3, 6, 3, -2),
    Sketcher.Constraint("Symmetric", 1, 3, 7, 3, -2),
    Sketcher.Constraint("Symmetric", 8, 3, 12, 3, -2),
    Sketcher.Constraint("Symmetric", 10, 3, 13, 3, -2),
    Sketcher.Constraint("Symmetric", 9, 3, 14, 3, -2),
    Sketcher.Constraint("Symmetric", 11, 3, 15, 3, -2),
    Sketcher.Constraint("Horizontal", 1, 3, 2, 3),
    Sketcher.Constraint("Horizontal", 9, 3, 10, 3),
    Sketcher.Constraint("Vertical", 0, 3, 3, 3),
    Sketcher.Constraint("Vertical", 3, 3, 8, 3),
    Sketcher.Constraint("Vertical", 1, 3, 9, 3),
    Sketcher.Constraint("Vertical", 2, 3, 10, 3),
    Sketcher.Constraint("Vertical", 8, 3, 11, 3),
    Sketcher.Constraint("Diameter", 0, 3.3),
    Sketcher.Constraint("DistanceX", 0, 3, -1, 1, 120.0),
    Sketcher.Constraint("DistanceY", -1, 1, 0, 3, 195.0),
    Sketcher.Constraint("DistanceX", 1, 3, -1, 1, 155.0),
    Sketcher.Constraint("DistanceY", -1, 1, 1, 3, 160.0),
    Sketcher.Constraint("DistanceX", 2, 3, -1, 1, 85.0),
    Sketcher.Constraint("DistanceY", -1, 1, 3, 3, 125.0),
    Sketcher.Constraint("DistanceY", 9, 3, 8, 3, 35.0),
    Sketcher.Constraint("DistanceY", 11, 3, 9, 3, 35.0),
    Sketcher.Constraint("DistanceY", 8, 3, -1, 1, 125.002034),
])
doc.recompute()
hole = doc.addObject("PartDesign::Hole", "Hole")
body.addObject(hole)
hole.Profile = sketch2
hole.ThreadType = "None"
hole.Diameter = 3.3
hole.DepthType = "ThroughAll"

sketch3 = doc.addObject("Sketcher::SketchObject", "Sketch002")
body.addObject(sketch3)
sketch3.AttachmentSupport = (doc.XY_Plane, [""])
sketch3.MapMode = "FlatFace"
sketch3.AttachmentOffset = App.Placement(App.Vector(0, 0, 4), App.Rotation())
sketch3.addGeometry([
    Part.Circle(App.Vector(-120, 110, 0), App.Vector(0, 0, 1), 2.1),
    Part.Circle(App.Vector(-25, 68.76, 0), App.Vector(0, 0, 1), 2.1),
    Part.Circle(App.Vector(25, 68.76, 0), App.Vector(0, 0, 1), 2.1),
    Part.Circle(App.Vector(120, 110, 0), App.Vector(0, 0, 1), 2.1),
    Part.Circle(App.Vector(-25, -70, 0), App.Vector(0, 0, 1), 2.1),
    Part.Circle(App.Vector(25, -70, 0), App.Vector(0, 0, 1), 2.1),
    Part.Circle(App.Vector(25, -100, 0), App.Vector(0, 0, 1), 2.1),
    Part.Circle(App.Vector(-25, -100, 0), App.Vector(0, 0, 1), 2.1),
    Part.Circle(App.Vector(-70, -160.002034, 0), App.Vector(0, 0, 1), 2.1),
    Part.Circle(App.Vector(70, -160.002034, 0), App.Vector(0, 0, 1), 2.1),
    Part.Circle(App.Vector(-126.75, 9.3, 0), App.Vector(0, 0, 1), 2.1),
    Part.Circle(App.Vector(-111.25, 9.3, 0), App.Vector(0, 0, 1), 2.1),
    Part.Circle(App.Vector(-126.75, -26.7, 0), App.Vector(0, 0, 1), 2.1),
    Part.Circle(App.Vector(-111.25, -26.7, 0), App.Vector(0, 0, 1), 2.1),
    Part.Circle(App.Vector(111.25, 9.3, 0), App.Vector(0, 0, 1), 2.1),
    Part.Circle(App.Vector(126.75, 9.3, 0), App.Vector(0, 0, 1), 2.1),
    Part.Circle(App.Vector(111.25, -26.7, 0), App.Vector(0, 0, 1), 2.1),
    Part.Circle(App.Vector(126.75, -26.7, 0), App.Vector(0, 0, 1), 2.1),
], False)
sketch3.addConstraint([
    Sketcher.Constraint("Equal", 0, 1),
    Sketcher.Constraint("Equal", 1, 2),
    Sketcher.Constraint("Equal", 2, 3),
    Sketcher.Constraint("Equal", 3, 4),
    Sketcher.Constraint("Equal", 4, 5),
    Sketcher.Constraint("Equal", 5, 6),
    Sketcher.Constraint("Equal", 6, 7),
    Sketcher.Constraint("Equal", 7, 8),
    Sketcher.Constraint("Equal", 8, 9),
    Sketcher.Constraint("Equal", 9, 10),
    Sketcher.Constraint("Equal", 10, 11),
    Sketcher.Constraint("Equal", 11, 12),
    Sketcher.Constraint("Equal", 12, 13),
    Sketcher.Constraint("Equal", 13, 14),
    Sketcher.Constraint("Equal", 14, 15),
    Sketcher.Constraint("Equal", 15, 16),
    Sketcher.Constraint("Equal", 16, 17),
    Sketcher.Constraint("Symmetric", 1, 3, 2, 3, -2),
    Sketcher.Constraint("Symmetric", 0, 3, 3, 3, -2),
    Sketcher.Constraint("Symmetric", 4, 3, 5, 3, -2),
    Sketcher.Constraint("Symmetric", 6, 3, 7, 3, -2),
    Sketcher.Constraint("Symmetric", 8, 3, 9, 3, -2),
    Sketcher.Constraint("Symmetric", 11, 3, 14, 3, -2),
    Sketcher.Constraint("Symmetric", 10, 3, 15, 3, -2),
    Sketcher.Constraint("Symmetric", 13, 3, 16, 3, -2),
    Sketcher.Constraint("Symmetric", 12, 3, 17, 3, -2),
    Sketcher.Constraint("Horizontal", 10, 3, 11, 3),
    Sketcher.Constraint("Horizontal", 12, 3, 13, 3),
    Sketcher.Constraint("Vertical", 1, 3, 4, 3),
    Sketcher.Constraint("Vertical", 5, 3, 6, 3),
    Sketcher.Constraint("Vertical", 10, 3, 12, 3),
    Sketcher.Constraint("Vertical", 11, 3, 13, 3),
    Sketcher.Constraint("Diameter", 0, 4.2),
    Sketcher.Constraint("DistanceX", 0, 3, -1, 1, 120.0),
    Sketcher.Constraint("DistanceY", -1, 1, 0, 3, 110.0),
    Sketcher.Constraint("DistanceX", 1, 3, -1, 1, 25.0),
    Sketcher.Constraint("DistanceY", 4, 3, -1, 1, 70.0),
    Sketcher.Constraint("DistanceY", 6, 3, -1, 1, 100.0),
    Sketcher.Constraint("DistanceX", 8, 3, -1, 1, 70.0),
    Sketcher.Constraint("DistanceY", 12, 3, 10, 3, 36.0),
    Sketcher.Constraint("DistanceY", -1, 1, 10, 3, 9.3),
    Sketcher.Constraint("DistanceX", 10, 3, 11, 3, 15.5),
    Sketcher.Constraint("DistanceY", -1, 1, 1, 3, 68.76),
    Sketcher.Constraint("DistanceX", 10, 3, -1, 1, 126.75),
    Sketcher.Constraint("DistanceY", 8, 3, -1, 1, 160.002034),
])
doc.recompute()
hole2 = doc.addObject("PartDesign::Hole", "Hole001")
body.addObject(hole2)
hole2.Profile = sketch3
hole2.ThreadType = "None"
hole2.Diameter = 4.2
hole2.DepthType = "ThroughAll"

doc.recompute()
